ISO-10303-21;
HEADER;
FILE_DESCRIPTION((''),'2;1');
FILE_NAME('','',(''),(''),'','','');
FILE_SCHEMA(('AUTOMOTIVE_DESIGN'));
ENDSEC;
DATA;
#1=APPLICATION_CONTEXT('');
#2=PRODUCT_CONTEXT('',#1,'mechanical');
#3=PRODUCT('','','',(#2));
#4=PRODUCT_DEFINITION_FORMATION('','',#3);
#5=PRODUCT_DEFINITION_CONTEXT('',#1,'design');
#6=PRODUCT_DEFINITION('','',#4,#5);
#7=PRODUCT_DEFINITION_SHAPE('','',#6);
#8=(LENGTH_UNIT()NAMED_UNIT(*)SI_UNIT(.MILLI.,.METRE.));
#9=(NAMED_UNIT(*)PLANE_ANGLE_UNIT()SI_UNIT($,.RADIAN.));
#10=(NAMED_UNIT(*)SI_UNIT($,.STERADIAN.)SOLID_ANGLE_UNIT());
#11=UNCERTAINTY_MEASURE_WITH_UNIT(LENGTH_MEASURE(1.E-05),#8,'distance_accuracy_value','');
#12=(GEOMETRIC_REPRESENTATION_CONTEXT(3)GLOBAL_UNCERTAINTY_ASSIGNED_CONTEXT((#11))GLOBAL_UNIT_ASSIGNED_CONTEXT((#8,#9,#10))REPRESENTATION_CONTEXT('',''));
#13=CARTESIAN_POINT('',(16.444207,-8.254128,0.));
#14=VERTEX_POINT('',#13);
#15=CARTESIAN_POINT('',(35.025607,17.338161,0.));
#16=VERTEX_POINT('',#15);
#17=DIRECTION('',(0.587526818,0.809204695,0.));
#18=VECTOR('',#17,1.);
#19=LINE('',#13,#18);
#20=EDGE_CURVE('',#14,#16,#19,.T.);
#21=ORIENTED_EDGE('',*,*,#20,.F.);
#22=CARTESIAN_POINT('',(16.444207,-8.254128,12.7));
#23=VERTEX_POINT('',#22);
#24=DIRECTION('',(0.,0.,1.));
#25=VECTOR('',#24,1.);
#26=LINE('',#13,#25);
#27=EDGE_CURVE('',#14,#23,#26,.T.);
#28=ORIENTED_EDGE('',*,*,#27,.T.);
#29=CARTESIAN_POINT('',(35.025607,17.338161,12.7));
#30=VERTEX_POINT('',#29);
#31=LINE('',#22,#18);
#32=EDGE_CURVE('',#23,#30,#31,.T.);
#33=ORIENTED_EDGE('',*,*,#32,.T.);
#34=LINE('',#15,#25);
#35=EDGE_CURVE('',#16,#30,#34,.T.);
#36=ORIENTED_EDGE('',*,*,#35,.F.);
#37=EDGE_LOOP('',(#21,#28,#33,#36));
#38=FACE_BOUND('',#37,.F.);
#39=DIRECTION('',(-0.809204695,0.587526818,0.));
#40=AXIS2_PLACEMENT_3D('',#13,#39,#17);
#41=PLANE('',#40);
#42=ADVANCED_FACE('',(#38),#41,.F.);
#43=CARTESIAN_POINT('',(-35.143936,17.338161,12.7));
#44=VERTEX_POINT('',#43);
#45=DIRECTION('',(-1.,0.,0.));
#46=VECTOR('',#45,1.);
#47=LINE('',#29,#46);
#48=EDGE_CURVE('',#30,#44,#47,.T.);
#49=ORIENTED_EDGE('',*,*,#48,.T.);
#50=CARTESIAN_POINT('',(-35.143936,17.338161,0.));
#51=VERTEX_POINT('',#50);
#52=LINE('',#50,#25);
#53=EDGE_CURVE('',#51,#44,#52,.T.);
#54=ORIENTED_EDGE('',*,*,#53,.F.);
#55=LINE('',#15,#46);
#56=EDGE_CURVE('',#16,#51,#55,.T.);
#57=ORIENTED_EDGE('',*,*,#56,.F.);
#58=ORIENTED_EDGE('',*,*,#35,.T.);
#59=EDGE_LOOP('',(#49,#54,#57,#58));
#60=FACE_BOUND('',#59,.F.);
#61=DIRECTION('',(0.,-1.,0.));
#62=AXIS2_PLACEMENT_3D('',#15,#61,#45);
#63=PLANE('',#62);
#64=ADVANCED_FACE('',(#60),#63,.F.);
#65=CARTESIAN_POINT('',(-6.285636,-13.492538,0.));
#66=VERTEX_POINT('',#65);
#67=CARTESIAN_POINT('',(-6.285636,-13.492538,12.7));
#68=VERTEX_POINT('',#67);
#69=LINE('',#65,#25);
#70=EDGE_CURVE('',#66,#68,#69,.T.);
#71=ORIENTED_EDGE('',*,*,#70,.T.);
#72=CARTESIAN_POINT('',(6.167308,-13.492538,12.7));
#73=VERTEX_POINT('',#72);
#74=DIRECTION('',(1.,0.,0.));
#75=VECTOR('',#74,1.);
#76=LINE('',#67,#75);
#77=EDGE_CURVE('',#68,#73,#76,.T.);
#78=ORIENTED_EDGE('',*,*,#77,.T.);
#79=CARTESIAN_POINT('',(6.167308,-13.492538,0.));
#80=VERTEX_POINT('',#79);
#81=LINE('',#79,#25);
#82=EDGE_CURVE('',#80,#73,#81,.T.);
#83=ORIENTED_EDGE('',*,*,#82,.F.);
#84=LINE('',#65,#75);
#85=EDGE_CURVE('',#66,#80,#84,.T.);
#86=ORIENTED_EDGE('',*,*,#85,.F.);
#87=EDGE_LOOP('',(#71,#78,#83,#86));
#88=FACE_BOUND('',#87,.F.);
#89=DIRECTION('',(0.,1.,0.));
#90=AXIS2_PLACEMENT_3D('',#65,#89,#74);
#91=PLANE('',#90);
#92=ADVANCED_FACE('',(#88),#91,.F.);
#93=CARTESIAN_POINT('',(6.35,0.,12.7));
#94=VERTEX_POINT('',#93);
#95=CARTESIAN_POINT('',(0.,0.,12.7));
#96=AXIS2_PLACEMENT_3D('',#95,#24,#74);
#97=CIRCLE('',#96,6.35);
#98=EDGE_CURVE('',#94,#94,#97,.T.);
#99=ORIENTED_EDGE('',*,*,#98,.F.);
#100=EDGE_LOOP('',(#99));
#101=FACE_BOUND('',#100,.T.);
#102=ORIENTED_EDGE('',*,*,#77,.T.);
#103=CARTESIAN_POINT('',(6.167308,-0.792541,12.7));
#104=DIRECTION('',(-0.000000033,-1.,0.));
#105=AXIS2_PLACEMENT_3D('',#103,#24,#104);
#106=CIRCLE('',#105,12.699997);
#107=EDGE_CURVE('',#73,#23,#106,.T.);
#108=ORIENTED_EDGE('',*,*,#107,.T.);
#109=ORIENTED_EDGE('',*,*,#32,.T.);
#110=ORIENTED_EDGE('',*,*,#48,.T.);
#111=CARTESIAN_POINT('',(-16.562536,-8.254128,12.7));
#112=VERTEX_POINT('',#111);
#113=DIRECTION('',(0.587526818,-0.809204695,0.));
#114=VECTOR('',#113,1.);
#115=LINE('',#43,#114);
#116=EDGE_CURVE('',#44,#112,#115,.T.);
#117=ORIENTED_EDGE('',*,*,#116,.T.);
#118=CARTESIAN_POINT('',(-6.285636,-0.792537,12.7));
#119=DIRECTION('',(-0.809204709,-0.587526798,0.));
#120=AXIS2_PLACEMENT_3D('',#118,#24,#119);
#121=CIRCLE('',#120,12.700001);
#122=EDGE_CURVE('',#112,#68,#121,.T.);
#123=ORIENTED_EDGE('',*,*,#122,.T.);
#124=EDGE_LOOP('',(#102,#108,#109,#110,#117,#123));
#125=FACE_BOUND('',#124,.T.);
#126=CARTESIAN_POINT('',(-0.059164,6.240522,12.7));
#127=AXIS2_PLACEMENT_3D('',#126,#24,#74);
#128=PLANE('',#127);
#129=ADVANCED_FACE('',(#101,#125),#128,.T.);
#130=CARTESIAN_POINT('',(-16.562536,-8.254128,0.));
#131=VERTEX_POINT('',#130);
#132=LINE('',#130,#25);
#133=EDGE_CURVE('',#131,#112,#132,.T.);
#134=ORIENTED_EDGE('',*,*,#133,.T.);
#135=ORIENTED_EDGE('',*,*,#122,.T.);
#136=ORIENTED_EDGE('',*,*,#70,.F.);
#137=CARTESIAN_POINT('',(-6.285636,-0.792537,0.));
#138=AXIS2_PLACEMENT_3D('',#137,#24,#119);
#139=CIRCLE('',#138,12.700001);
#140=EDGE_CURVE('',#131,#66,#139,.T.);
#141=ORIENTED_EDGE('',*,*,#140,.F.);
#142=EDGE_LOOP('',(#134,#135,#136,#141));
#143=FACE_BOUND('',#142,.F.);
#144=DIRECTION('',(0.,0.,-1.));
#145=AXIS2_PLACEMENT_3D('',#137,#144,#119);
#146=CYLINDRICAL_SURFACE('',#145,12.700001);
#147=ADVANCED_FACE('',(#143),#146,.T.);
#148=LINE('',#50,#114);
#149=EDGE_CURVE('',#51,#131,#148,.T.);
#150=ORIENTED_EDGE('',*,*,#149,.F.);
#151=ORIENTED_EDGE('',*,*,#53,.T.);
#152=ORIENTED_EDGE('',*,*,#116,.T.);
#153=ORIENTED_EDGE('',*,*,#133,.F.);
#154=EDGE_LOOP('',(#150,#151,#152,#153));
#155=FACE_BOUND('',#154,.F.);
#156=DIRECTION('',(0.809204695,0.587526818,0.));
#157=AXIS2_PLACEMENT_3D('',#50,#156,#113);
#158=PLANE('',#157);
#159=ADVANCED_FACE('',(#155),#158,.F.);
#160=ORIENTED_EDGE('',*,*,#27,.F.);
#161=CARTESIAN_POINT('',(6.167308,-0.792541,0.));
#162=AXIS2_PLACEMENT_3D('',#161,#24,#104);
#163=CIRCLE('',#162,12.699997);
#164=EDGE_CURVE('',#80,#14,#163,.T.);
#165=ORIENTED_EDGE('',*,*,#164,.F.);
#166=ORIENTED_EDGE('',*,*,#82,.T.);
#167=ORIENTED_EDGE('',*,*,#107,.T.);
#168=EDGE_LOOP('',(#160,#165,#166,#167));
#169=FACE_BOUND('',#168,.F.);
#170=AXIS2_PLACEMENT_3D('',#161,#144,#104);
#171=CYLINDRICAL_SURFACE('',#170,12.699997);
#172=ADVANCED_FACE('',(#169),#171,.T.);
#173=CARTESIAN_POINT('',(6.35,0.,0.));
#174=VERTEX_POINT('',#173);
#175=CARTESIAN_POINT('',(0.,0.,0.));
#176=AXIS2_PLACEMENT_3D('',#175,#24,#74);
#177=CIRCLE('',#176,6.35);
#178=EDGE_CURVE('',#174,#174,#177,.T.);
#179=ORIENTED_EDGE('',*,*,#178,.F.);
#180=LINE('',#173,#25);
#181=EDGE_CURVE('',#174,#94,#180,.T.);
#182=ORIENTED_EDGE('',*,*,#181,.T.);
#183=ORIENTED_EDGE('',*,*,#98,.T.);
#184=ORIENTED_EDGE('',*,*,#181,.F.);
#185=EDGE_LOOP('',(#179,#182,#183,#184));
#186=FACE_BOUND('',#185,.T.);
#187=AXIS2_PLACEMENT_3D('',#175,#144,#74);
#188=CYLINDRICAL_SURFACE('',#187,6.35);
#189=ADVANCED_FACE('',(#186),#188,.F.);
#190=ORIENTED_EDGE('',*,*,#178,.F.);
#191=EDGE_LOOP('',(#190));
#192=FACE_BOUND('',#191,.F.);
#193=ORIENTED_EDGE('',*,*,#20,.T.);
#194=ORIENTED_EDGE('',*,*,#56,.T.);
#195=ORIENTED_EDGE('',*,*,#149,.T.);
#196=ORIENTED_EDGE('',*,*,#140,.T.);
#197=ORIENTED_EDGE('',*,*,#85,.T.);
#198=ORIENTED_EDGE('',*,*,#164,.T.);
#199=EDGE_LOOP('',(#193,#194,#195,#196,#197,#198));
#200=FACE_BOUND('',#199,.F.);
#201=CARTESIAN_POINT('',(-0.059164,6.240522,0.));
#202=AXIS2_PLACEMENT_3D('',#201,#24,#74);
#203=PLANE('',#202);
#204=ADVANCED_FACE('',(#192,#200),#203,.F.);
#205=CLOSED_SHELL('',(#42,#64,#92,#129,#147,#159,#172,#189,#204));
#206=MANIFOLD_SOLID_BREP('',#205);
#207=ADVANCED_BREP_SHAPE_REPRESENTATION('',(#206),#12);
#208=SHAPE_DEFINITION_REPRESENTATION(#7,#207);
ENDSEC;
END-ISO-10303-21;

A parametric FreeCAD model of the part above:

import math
import FreeCAD as App
import Part
import Sketcher
Q = App.Units.Quantity

doc = App.newDocument("Part")
body = doc.addObject("PartDesign::Body", "Body")

sketch1 = body.newObject("Sketcher::SketchObject", "Sketch")
sketch1.AttachmentSupport = (doc.getObject("XY_Plane"), [""])
sketch1.MapMode = "FlatFace"
sketch1.addGeometry([
    Part.LineSegment(App.Vector(35, 17, 0), App.Vector(-35, 17, 0)),
    Part.LineSegment(App.Vector(-35, 17, 0), App.Vector(-17, -8, 0)),
    Part.ArcOfCircle(Part.Circle(App.Vector(-6, -1, 0), App.Vector(0, 0, 1), 13), math.radians(-144), math.radians(-90)),
    Part.LineSegment(App.Vector(-6, -13, 0), App.Vector(6, -13, 0)),
    Part.ArcOfCircle(Part.Circle(App.Vector(6, -1, 0), App.Vector(0, 0, 1), 13), math.radians(-90), math.radians(-36)),
    Part.LineSegment(App.Vector(16, -8, 0), App.Vector(35, 17, 0)),
    Part.Circle(App.Vector(0, 0, 0), App.Vector(0, 0, 1), 6),
], False)
sketch1.addConstraint([
    Sketcher.Constraint("Coincident", 0, 2, 1, 1),
    Sketcher.Constraint("Tangent", 1, 2, 2, 1),
    Sketcher.Constraint("Tangent", 2, 2, 3, 1),
    Sketcher.Constraint("Tangent", 3, 2, 4, 1),
    Sketcher.Constraint("Tangent", 4, 2, 5, 1),
    Sketcher.Constraint("Coincident", 5, 2, 0, 1),
    Sketcher.Constraint("Horizontal", 0),
    Sketcher.Constraint("Horizontal", 3),
    Sketcher.Constraint("Coincident", 6, 3, -1, 1),
    Sketcher.Constraint("Horizontal", 1, 2, 4, 2),
    Sketcher.Constraint("Equal", 1, 5),
    Sketcher.Constraint("Diameter", 6, Q("0.5 in")),
    Sketcher.Constraint("Radius", 2, Q("0.5 in")),
    Sketcher.Constraint("DistanceX", 0, 2, 2, 3, Q("28.8583 mm")),
    Sketcher.Constraint("DistanceY", 2, 3, 0, 2, Q("18.130698 mm")),
    Sketcher.Constraint("DistanceX", 0, 2, 0, 1, Q("70.169543 mm")),
    Sketcher.Constraint("DistanceX", -1, 1, 4, 3, Q("6.167308 mm")),
    Sketcher.Constraint("DistanceY", 4, 3, -1, 1, Q("0.792541 mm")),
])
pad1 = body.newObject("PartDesign::Pad", "Pad")
pad1.Profile = sketch1
pad1.Length = Q("0.5 in")

doc.recompute()
